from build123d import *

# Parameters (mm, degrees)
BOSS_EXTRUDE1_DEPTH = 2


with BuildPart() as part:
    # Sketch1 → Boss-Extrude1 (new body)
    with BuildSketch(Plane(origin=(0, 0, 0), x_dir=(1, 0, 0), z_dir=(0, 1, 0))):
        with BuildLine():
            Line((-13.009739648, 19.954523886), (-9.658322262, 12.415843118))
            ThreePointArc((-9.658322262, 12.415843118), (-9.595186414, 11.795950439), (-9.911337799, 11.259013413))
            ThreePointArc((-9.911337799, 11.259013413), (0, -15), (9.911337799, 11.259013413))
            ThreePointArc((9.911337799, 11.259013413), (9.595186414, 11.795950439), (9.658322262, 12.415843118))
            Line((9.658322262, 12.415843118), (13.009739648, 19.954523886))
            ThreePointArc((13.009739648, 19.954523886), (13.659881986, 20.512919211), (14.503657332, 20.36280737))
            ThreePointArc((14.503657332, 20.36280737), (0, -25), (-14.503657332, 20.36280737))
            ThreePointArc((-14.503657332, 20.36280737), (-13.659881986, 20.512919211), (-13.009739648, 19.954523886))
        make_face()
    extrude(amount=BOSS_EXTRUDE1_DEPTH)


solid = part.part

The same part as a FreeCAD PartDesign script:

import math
import FreeCAD as App
import Part
import Sketcher
from FreeCAD import Vector

doc = App.newDocument("Part")
body = doc.addObject("PartDesign::Body", "Body")

sketch1 = body.newObject("Sketcher::SketchObject", "Sketch")
sketch1.AttachmentSupport = (doc.getObject("XZ_Plane"), [""])
sketch1.MapMode = "FlatFace"
sketch1.addGeometry(Part.LineSegment(Vector(-9.7, -12.4, 0), Vector(-13, -20, 0)), False)
sketch1.addGeometry(Part.ArcOfCircle(Part.Circle(Vector(-13.9, -19.5, 0), Vector(0, 0, 1), 1), math.radians(-125), math.radians(-24)), False)
sketch1.addGeometry(Part.ArcOfCircle(Part.Circle(Vector(0, 0, 0), Vector(0, 0, 1), 25), math.radians(-55), math.radians(235)), False)
sketch1.addGeometry(Part.ArcOfCircle(Part.Circle(Vector(13.9, -19.5, 0), Vector(0, 0, 1), 1), math.radians(-156), math.radians(-55)), False)
sketch1.addGeometry(Part.LineSegment(Vector(13, -20, 0), Vector(9.7, -12.4, 0)), False)
sketch1.addGeometry(Part.ArcOfCircle(Part.Circle(Vector(10.6, -12, 0), Vector(0, 0, 1), 1), math.radians(131), math.radians(204)), False)
sketch1.addGeometry(Part.ArcOfCircle(Part.Circle(Vector(0, 0, 0), Vector(0, 0, 1), 15), math.radians(-49), math.radians(229)), False)
sketch1.addGeometry(Part.ArcOfCircle(Part.Circle(Vector(-10.6, -12, 0), Vector(0, 0, 1), 1), math.radians(-24), math.radians(49)), False)
sketch1.addConstraint(Sketcher.Constraint("Tangent", 0, 2, 1, 2))
sketch1.addConstraint(Sketcher.Constraint("Tangent", 1, 1, 2, 2))
sketch1.addConstraint(Sketcher.Constraint("Tangent", 2, 1, 3, 2))
sketch1.addConstraint(Sketcher.Constraint("Tangent", 3, 1, 4, 1))
sketch1.addConstraint(Sketcher.Constraint("Tangent", 4, 2, 5, 2))
sketch1.addConstraint(Sketcher.Constraint("Tangent", 5, 1, 6, 1))
sketch1.addConstraint(Sketcher.Constraint("Tangent", 6, 2, 7, 2))
sketch1.addConstraint(Sketcher.Constraint("Tangent", 7, 1, 0, 1))
sketch1.addConstraint(Sketcher.Constraint("Coincident", 2, 3, -1, 1))
sketch1.addConstraint(Sketcher.Constraint("Coincident", 6, 3, -1, 1))
sketch1.addConstraint(Sketcher.Constraint("Equal", 1, 3))
sketch1.addConstraint(Sketcher.Constraint("Equal", 3, 5))
sketch1.addConstraint(Sketcher.Constraint("Equal", 5, 7))
sketch1.addConstraint(Sketcher.Constraint("Symmetric", 0, 2, 3, 1, -2))
sketch1.addConstraint(Sketcher.Constraint("Radius", 1, 1.0))
sketch1.addConstraint(Sketcher.Constraint("Radius", 2, 25.0))
sketch1.addConstraint(Sketcher.Constraint("Radius", 6, 15.0))
sketch1.addConstraint(Sketcher.Constraint("DistanceY", 5, 3, 5, 1, 0.750601))
sketch1.addConstraint(Sketcher.Constraint("DistanceX", 5, 1, 3, 1, 3.098402))
pad1 = body.newObject("PartDesign::Pad", "Pad")
pad1.Profile = sketch1
pad1.Length = 2
pad1.Reversed = True

doc.recompute()
